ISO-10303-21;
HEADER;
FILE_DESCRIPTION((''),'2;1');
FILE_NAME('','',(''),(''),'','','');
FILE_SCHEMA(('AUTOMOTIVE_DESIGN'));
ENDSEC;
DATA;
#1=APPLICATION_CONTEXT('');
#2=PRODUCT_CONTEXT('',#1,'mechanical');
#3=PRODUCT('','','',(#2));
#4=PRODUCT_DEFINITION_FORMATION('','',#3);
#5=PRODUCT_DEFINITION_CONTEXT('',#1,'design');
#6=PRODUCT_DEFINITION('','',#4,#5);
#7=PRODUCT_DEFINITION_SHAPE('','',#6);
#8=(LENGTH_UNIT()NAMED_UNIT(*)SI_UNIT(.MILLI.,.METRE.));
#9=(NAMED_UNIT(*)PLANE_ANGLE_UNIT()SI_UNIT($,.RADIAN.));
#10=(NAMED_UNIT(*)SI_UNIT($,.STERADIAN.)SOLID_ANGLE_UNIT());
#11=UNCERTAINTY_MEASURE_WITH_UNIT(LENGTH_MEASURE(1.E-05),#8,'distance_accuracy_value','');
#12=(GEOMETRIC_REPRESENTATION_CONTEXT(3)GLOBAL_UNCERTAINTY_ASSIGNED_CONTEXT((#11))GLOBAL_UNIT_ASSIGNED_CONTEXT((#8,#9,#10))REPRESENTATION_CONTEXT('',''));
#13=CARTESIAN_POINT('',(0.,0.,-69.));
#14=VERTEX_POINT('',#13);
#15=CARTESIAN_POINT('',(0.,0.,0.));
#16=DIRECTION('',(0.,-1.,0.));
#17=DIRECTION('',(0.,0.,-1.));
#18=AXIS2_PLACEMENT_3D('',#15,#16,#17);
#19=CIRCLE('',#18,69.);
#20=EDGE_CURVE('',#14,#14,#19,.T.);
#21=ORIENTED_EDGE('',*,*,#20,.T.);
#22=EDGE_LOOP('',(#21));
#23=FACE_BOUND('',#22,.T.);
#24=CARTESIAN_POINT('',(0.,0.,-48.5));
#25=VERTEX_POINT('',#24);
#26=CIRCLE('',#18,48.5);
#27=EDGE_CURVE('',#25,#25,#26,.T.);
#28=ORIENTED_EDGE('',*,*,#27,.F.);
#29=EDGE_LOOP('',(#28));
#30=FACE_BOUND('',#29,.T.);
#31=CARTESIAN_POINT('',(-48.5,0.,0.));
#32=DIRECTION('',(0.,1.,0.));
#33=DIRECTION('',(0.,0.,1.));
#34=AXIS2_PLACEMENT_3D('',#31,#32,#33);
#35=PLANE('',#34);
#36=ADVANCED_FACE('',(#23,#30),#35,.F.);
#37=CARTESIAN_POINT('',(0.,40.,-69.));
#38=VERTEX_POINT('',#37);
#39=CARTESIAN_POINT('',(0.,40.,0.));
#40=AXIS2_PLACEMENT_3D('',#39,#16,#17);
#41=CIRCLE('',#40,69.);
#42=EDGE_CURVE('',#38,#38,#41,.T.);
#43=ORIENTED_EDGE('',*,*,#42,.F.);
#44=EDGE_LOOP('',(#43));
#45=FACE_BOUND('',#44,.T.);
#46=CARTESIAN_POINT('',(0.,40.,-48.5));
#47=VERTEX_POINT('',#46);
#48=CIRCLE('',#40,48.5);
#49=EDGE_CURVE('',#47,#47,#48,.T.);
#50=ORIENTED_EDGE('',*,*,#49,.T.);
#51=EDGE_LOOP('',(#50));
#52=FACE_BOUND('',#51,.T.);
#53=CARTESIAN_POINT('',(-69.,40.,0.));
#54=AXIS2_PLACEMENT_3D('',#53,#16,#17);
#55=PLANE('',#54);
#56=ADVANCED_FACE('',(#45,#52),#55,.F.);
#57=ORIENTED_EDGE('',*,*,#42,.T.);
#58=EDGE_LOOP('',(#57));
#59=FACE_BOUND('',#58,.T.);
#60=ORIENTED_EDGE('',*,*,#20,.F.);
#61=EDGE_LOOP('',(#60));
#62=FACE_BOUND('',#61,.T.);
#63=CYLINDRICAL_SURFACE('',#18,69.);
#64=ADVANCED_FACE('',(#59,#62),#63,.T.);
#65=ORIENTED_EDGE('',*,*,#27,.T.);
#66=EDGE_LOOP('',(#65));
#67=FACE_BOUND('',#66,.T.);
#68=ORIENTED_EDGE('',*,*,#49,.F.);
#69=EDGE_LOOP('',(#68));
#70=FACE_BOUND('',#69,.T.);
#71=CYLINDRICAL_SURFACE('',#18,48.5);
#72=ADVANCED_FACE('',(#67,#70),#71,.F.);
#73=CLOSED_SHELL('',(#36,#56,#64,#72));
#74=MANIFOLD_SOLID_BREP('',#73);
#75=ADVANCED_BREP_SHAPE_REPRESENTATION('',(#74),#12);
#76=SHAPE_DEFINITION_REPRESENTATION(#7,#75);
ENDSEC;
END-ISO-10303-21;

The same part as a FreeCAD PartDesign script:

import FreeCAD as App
import Part
import Sketcher

V = App.Vector
Q = App.Units.Quantity

doc = App.newDocument("Part")
body = doc.addObject("PartDesign::Body", "Body")

# Sketch on XY plane
sketch1 = body.newObject("Sketcher::SketchObject", "Sketch")
sketch1.AttachmentSupport = (doc.getObject("XY_Plane"), [""])
sketch1.MapMode = "FlatFace"
sketch1.addGeometry([
    Part.LineSegment(V(-69, 40, 0), V(-69, 0, 0)),
    Part.LineSegment(V(-69, 0, 0), V(-48, 0, 0)),
    Part.LineSegment(V(-48, 0, 0), V(-48, 40, 0)),
    Part.LineSegment(V(-48, 40, 0), V(-69, 40, 0)),
], False)
sketch1.addConstraint([
    Sketcher.Constraint("Coincident", 0, 2, 1, 1),
    Sketcher.Constraint("Coincident", 1, 2, 2, 1),
    Sketcher.Constraint("Coincident", 2, 2, 3, 1),
    Sketcher.Constraint("Coincident", 3, 2, 0, 1),
    Sketcher.Constraint("Vertical", 0),
    Sketcher.Constraint("Horizontal", 1),
    Sketcher.Constraint("Vertical", 2),
    Sketcher.Constraint("Horizontal", 3),
    Sketcher.Constraint("PointOnObject", 0, 2, -1),
    Sketcher.Constraint("DistanceY", 0, 2, 0, 1, Q("40 mm")),
    Sketcher.Constraint("DistanceX", 1, 1, 1, 2, Q("20.5 mm")),
    Sketcher.Constraint("DistanceX", 0, 2, -1, 1, Q("69 mm")),
])
revolution = body.newObject("PartDesign::Revolution", "Revolution")
revolution.Profile = sketch1
revolution.ReferenceAxis = (sketch1, ["V_Axis"])
revolution.Angle = 360

doc.recompute()
